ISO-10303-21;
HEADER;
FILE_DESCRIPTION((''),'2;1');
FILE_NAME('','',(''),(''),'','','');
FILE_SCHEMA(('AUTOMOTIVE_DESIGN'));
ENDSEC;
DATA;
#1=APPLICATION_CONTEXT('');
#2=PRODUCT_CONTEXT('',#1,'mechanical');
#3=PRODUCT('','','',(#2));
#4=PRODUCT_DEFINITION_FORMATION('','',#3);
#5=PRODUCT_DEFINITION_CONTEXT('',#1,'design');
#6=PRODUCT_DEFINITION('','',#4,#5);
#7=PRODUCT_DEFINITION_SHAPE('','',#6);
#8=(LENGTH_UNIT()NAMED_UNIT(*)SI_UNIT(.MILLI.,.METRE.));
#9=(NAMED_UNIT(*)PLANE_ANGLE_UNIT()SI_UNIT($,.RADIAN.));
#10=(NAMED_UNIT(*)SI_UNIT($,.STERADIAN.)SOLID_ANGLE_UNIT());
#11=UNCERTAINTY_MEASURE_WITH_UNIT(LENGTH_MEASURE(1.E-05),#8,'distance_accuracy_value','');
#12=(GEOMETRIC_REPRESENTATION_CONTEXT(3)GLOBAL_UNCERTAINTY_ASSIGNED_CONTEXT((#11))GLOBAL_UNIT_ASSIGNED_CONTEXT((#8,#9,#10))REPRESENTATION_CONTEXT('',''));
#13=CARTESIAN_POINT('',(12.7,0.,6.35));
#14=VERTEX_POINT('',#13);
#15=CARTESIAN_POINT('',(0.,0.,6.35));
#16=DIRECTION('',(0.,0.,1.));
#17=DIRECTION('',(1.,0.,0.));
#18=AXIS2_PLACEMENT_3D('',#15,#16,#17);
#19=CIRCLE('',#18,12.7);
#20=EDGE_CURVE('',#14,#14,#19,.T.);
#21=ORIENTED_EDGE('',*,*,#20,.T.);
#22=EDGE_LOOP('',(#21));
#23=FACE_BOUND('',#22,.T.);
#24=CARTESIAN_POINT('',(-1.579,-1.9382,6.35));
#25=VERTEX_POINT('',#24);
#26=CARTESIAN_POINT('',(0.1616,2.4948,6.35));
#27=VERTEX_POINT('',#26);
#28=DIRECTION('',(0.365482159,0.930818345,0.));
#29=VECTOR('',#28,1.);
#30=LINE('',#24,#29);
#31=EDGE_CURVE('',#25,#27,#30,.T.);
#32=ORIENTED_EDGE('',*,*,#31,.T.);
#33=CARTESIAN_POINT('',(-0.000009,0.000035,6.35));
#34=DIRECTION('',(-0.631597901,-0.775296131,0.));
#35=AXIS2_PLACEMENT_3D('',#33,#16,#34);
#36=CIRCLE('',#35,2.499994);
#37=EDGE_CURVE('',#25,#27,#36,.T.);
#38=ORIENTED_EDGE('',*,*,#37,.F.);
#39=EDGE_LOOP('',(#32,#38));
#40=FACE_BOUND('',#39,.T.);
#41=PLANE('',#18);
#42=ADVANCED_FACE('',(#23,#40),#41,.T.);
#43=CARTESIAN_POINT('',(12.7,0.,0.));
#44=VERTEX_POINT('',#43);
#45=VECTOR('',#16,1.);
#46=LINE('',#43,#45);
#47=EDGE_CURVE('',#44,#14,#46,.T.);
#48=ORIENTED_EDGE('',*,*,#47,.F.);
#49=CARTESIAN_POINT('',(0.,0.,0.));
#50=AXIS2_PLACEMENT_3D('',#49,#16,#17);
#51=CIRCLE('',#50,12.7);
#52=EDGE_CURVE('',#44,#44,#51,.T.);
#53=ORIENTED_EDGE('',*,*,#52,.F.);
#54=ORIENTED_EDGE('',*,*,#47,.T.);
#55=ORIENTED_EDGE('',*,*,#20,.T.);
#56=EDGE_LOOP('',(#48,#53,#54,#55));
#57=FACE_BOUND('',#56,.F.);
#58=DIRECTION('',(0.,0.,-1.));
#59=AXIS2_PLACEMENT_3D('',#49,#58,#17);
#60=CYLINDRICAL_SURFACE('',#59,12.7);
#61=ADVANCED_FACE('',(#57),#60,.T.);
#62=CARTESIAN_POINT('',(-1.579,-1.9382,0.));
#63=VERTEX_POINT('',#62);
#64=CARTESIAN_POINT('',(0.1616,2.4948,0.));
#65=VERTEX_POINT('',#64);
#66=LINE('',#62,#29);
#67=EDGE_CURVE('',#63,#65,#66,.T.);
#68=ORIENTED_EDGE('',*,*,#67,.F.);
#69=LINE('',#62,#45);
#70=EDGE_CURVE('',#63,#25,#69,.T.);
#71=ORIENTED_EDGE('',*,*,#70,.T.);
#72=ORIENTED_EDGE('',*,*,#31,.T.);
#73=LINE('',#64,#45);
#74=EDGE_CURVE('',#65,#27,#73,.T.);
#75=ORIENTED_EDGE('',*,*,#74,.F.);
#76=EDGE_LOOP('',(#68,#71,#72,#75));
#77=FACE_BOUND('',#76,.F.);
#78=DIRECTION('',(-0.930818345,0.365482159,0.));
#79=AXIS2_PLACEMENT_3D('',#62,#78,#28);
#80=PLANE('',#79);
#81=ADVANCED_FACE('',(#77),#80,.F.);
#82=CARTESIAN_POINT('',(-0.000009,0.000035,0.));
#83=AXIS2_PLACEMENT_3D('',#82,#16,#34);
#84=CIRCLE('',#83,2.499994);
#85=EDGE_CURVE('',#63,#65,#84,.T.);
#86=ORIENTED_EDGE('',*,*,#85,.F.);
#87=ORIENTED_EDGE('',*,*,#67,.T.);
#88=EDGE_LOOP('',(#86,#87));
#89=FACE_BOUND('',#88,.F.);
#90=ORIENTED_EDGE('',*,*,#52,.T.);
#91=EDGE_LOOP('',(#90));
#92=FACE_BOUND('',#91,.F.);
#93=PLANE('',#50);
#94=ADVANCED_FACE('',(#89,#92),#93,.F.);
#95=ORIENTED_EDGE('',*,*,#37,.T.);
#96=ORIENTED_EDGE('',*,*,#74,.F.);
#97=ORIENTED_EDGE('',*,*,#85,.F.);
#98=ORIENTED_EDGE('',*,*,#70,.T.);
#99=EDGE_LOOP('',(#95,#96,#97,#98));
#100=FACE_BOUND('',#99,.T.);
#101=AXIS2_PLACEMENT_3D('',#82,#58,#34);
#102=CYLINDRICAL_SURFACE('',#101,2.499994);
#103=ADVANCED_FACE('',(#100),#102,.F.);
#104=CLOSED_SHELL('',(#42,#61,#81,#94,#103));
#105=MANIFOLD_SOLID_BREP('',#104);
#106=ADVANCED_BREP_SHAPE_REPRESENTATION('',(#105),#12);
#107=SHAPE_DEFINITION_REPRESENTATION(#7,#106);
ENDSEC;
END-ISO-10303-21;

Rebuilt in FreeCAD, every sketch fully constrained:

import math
import FreeCAD as App
import Part
import Sketcher
from FreeCAD import Vector
Q = App.Units.Quantity

doc = App.newDocument("Part")
params = doc.addObject("Spreadsheet::Sheet", "Params")
for row, (alias, value) in enumerate([
    ("sketch1_diameter", "1 in"),
    ("sketch1_length", "0.1875 in"),
    ("pad1_length", "0.25 in"),
], start=1):
    params.set(f"A{row}", alias)
    params.set(f"B{row}", "=" + value)
    params.setAlias(f"B{row}", alias)

body = doc.addObject("PartDesign::Body", "Body")

# Sketch on XY plane
sketch1 = body.newObject("Sketcher::SketchObject", "Sketch")
sketch1.AttachmentSupport = (doc.getObject("XY_Plane"), [""])
sketch1.MapMode = "FlatFace"
sketch1.addGeometry([
    Part.Circle(Vector(0, 0, 0), Vector(0, 0, 1), 12.7),
    Part.ArcOfCircle(Part.Circle(Vector(0, 0, 0), Vector(0, 0, 1), 2.5), math.radians(-129), math.radians(86)),
    Part.LineSegment(Vector(-1.6, -1.9, 0), Vector(0.2, 2.5, 0)),
], False)
sketch1.addConstraint([
    Sketcher.Constraint("Coincident", 1, 1, 2, 1),
    Sketcher.Constraint("Coincident", 2, 2, 1, 2),
    Sketcher.Constraint("Coincident", 0, 3, -1, 1),
    Sketcher.Constraint("Coincident", 1, 3, -1, 1),
    Sketcher.Constraint("Diameter", 0, Q("1 in")),
    Sketcher.Constraint("Radius", 1, Q("2.5 mm")),
    Sketcher.Constraint("Distance", 2, Q("0.1875 in")),
    Sketcher.Constraint("DistanceY", 1, 1, -1, 1, Q("0.0763 in")),
])
sketch1.setExpression("Constraints[4]", "Params.sketch1_diameter")
sketch1.setExpression("Constraints[6]", "Params.sketch1_length")
pad1 = body.newObject("PartDesign::Pad", "Pad")
pad1.Profile = sketch1
pad1.setExpression("Length", "Params.pad1_length")

doc.recompute()
